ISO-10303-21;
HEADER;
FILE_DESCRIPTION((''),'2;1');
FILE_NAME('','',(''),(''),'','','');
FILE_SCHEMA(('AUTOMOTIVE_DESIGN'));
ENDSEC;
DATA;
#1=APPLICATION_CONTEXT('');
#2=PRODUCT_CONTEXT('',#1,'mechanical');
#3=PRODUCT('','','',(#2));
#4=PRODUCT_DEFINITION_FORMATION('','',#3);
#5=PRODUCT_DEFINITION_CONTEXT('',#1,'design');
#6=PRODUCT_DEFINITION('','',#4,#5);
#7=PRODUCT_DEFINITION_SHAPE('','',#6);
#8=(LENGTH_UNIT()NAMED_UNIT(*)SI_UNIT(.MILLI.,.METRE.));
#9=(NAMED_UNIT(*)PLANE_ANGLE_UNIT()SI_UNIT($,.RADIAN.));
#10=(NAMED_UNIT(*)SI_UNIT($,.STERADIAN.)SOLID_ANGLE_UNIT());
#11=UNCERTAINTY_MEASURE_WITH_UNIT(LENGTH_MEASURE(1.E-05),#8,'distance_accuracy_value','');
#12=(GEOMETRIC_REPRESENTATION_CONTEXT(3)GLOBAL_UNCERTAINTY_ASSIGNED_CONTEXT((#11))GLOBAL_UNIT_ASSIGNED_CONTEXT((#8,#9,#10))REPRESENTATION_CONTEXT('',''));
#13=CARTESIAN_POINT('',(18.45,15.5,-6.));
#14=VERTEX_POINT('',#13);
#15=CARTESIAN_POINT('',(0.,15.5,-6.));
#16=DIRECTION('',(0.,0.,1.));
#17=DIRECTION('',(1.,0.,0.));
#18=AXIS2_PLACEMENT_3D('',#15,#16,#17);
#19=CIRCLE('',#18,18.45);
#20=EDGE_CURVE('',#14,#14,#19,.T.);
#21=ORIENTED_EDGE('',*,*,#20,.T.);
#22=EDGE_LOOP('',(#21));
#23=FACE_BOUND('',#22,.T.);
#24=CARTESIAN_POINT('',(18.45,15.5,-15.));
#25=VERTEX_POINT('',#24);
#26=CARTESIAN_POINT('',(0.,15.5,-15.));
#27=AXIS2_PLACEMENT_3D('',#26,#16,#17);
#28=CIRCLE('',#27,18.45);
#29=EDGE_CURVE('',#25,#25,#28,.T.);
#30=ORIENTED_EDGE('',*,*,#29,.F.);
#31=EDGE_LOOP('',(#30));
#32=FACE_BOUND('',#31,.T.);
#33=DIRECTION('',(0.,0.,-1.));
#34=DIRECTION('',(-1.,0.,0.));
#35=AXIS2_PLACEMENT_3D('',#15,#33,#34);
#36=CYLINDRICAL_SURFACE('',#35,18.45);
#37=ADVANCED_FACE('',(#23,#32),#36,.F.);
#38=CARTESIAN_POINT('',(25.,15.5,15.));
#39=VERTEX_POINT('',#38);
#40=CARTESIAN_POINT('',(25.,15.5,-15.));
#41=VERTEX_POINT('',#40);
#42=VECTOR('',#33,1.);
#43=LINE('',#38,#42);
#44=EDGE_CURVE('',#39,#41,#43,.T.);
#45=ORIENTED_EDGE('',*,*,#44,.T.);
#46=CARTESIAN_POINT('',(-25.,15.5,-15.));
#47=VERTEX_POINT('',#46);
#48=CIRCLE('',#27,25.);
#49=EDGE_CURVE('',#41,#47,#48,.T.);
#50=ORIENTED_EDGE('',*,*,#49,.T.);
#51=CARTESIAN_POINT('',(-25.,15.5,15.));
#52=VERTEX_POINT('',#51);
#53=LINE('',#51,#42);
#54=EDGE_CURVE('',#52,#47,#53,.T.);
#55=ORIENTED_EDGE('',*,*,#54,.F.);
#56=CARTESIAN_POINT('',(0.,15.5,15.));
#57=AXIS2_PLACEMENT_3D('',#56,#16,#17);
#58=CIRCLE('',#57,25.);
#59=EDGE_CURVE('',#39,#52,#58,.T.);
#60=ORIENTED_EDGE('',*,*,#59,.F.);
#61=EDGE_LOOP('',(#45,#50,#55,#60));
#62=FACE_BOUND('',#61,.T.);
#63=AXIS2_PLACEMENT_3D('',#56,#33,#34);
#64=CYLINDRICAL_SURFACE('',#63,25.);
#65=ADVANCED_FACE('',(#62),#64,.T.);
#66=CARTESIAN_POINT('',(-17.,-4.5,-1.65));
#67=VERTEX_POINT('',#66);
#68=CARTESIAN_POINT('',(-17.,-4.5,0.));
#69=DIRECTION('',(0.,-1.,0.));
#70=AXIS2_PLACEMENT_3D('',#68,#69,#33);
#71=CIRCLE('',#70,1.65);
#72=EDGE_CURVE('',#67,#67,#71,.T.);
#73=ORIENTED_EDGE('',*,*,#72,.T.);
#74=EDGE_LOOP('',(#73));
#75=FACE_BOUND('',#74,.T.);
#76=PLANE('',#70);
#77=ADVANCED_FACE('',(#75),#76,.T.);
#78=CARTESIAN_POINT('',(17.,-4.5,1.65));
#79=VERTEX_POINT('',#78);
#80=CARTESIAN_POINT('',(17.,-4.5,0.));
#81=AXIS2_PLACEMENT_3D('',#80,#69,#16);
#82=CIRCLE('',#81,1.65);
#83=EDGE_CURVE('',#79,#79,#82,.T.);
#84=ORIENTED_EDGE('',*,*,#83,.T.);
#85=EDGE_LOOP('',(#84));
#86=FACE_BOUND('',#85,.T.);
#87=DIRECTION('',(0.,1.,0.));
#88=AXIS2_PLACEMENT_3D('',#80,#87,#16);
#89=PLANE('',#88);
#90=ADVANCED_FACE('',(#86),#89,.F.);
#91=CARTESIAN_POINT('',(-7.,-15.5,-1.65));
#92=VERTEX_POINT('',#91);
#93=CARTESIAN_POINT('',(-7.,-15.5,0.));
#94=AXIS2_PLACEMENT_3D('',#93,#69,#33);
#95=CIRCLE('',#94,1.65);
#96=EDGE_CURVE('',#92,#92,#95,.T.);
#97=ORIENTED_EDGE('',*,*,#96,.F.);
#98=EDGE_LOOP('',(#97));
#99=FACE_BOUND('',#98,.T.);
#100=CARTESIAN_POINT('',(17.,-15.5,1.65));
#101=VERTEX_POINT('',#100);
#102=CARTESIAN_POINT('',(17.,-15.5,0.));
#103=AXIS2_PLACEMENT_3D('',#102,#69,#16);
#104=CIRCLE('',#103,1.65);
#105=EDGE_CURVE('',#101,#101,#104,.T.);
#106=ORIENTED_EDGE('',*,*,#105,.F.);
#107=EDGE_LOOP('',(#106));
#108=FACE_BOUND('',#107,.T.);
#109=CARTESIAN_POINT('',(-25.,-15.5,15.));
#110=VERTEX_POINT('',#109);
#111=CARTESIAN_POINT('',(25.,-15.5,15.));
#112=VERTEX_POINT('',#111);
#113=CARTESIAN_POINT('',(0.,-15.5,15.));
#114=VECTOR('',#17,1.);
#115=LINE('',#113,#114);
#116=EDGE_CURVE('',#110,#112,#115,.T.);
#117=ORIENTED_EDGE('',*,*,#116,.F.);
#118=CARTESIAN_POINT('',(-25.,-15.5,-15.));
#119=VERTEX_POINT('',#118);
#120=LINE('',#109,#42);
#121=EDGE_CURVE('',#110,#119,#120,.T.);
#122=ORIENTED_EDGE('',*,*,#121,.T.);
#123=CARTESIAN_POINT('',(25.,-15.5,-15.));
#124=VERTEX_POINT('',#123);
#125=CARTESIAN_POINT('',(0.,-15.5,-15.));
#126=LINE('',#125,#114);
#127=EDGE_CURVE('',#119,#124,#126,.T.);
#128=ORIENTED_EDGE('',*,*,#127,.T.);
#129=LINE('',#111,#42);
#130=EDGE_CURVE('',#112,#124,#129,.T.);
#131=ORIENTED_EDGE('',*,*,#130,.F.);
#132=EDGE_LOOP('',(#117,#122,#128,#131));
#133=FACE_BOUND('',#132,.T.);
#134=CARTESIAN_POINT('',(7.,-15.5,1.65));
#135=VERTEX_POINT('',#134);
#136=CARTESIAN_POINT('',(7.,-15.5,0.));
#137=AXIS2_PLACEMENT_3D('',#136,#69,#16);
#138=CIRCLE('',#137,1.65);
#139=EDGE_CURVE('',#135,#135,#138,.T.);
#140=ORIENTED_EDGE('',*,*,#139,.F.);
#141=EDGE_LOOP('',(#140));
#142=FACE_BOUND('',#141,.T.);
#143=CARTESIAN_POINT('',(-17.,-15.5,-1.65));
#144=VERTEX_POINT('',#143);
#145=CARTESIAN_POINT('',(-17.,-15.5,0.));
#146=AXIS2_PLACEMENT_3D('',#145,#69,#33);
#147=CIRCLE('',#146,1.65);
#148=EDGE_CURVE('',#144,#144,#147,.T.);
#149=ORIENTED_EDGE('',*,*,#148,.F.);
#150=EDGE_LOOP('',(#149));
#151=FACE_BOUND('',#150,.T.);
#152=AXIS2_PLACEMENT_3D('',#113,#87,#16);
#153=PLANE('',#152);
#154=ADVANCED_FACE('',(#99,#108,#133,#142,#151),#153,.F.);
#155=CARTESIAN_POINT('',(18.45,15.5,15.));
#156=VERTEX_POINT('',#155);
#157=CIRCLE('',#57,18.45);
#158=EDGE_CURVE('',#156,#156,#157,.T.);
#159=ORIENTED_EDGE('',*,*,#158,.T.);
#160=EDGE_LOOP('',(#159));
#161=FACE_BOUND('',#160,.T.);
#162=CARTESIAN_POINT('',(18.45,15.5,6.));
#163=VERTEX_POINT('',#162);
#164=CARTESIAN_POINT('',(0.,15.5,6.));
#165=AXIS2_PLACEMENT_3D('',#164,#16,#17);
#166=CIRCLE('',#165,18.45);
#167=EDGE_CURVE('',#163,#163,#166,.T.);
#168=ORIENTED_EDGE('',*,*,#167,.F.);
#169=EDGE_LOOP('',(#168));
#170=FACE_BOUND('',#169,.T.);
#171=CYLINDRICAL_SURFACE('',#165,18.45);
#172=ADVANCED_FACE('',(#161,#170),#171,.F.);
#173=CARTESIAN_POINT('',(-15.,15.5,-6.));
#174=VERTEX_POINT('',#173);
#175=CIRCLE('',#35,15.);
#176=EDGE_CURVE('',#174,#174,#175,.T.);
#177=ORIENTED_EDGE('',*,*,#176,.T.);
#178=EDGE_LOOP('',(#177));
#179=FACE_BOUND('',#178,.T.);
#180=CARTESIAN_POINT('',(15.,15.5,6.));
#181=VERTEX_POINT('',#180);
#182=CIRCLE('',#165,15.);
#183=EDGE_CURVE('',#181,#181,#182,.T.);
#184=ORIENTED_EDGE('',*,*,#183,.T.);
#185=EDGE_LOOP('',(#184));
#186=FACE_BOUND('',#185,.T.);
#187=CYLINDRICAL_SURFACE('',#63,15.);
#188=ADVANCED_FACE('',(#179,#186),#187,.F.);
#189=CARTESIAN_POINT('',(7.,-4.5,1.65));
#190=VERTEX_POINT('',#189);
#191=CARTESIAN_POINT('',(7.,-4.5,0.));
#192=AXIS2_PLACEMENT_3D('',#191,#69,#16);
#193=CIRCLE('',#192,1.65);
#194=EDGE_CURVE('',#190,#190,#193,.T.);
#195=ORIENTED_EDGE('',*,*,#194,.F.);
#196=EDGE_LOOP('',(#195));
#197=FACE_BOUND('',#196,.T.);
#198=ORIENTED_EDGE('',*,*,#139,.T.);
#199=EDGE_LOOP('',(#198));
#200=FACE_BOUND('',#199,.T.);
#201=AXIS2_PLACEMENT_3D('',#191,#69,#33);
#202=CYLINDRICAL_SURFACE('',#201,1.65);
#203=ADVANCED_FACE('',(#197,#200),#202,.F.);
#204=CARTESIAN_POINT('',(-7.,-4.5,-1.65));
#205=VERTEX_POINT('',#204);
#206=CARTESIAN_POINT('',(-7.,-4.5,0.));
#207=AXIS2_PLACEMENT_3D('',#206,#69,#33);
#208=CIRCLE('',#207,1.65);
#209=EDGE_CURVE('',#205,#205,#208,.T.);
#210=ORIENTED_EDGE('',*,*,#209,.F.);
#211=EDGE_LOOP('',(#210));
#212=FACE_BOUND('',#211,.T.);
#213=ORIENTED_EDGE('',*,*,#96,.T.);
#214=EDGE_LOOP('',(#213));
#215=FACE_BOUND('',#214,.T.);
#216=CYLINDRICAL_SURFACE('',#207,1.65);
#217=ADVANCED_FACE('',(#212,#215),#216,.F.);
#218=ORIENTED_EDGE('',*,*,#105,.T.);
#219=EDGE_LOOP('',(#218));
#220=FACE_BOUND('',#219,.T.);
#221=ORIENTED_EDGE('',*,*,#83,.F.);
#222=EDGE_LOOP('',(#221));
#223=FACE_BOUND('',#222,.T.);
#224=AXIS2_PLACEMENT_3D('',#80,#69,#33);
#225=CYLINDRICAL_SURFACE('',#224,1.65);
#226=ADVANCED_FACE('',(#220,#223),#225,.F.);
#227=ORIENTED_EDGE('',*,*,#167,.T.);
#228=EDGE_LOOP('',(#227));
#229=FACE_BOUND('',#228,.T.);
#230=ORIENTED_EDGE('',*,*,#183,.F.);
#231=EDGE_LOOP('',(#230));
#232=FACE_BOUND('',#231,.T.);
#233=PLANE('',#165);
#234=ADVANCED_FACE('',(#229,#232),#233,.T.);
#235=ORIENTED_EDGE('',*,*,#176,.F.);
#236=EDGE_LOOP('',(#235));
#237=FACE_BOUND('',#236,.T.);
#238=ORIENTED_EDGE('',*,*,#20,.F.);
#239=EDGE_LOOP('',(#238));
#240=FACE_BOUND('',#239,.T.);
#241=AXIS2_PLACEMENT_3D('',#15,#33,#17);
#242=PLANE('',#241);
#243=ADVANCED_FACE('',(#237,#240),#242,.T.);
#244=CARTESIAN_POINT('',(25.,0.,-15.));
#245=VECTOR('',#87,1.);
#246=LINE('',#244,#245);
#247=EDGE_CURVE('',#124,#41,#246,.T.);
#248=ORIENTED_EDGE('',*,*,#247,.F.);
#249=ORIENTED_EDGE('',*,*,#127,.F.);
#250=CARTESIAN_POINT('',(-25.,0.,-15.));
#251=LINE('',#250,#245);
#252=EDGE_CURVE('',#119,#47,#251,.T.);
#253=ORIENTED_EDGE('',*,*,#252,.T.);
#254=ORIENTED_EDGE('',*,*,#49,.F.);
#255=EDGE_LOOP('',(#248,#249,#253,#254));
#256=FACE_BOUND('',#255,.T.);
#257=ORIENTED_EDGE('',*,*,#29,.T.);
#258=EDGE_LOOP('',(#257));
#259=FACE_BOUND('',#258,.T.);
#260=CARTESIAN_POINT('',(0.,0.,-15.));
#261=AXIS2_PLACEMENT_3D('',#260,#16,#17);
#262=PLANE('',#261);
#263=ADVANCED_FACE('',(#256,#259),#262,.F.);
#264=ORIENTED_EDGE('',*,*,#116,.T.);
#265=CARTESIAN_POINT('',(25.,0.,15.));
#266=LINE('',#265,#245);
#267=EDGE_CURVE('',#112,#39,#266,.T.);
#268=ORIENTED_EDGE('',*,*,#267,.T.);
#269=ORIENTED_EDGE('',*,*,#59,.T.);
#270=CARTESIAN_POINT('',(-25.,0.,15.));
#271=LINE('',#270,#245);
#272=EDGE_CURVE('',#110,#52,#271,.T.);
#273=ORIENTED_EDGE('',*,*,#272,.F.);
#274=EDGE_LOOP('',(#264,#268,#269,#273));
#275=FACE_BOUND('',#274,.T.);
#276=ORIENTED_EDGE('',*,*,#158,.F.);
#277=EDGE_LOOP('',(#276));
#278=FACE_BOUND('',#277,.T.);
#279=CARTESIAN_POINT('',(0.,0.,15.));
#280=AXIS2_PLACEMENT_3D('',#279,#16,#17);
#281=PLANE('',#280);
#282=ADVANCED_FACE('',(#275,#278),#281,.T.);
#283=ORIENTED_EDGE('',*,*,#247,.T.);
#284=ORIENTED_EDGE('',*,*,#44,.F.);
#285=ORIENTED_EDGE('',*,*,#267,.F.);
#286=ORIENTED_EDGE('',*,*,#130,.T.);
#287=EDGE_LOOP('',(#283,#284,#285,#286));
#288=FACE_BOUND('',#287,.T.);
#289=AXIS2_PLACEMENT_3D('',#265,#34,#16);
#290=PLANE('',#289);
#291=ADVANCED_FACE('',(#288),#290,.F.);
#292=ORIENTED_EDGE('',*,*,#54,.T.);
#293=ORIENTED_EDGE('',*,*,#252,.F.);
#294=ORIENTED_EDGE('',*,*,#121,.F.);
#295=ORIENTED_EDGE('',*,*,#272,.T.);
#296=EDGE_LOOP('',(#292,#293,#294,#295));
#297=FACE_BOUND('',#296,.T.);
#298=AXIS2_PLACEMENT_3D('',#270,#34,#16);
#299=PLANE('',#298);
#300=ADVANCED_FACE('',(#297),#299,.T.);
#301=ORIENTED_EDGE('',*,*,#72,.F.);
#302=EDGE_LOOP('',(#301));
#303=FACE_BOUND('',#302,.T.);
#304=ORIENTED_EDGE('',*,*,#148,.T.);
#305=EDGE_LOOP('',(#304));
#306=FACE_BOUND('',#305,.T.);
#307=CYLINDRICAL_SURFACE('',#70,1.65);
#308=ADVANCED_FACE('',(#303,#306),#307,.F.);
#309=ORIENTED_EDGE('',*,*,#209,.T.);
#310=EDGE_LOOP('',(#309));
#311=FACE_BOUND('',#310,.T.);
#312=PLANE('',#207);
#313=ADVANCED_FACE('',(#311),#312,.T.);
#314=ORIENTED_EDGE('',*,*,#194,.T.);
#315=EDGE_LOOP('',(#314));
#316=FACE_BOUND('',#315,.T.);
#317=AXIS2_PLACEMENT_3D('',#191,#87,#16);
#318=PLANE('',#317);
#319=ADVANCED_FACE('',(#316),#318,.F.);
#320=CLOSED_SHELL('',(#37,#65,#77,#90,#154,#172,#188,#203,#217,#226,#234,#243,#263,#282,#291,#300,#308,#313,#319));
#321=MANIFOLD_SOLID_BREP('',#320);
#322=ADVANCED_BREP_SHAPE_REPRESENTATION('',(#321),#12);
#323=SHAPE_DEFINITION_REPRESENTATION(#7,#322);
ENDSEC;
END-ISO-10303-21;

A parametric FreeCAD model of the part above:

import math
import FreeCAD as App
import Part
import Sketcher
from FreeCAD import Vector
Q = App.Units.Quantity

doc = App.newDocument("Part")
body = doc.addObject("PartDesign::Body", "Body")

# Sketch on XY plane
sketch1 = doc.addObject("Sketcher::SketchObject", "Sketch")
body.addObject(sketch1)
sketch1.AttachmentSupport = (doc.XY_Plane, [""])
sketch1.MapMode = "FlatFace"
sketch1.addGeometry([
    Part.ArcOfCircle(Part.Circle(Vector(0, 16, 0), Vector(0, 0, 1), 25), math.radians(0), math.radians(180)),  # 0
    Part.LineSegment(Vector(-25, 16, 0), Vector(-25, -16, 0)),  # 1
    Part.LineSegment(Vector(-25, -16, 0), Vector(25, -16, 0)),  # 2
    Part.LineSegment(Vector(25, -16, 0), Vector(25, 16, 0)),  # 3
    Part.Circle(Vector(0, 16, 0), Vector(0, 0, 1), 15),  # 4
], False)
sketch1.addConstraint([
    Sketcher.Constraint("Tangent", 0, 2, 1, 1),
    Sketcher.Constraint("Coincident", 1, 2, 2, 1),
    Sketcher.Constraint("Coincident", 2, 2, 3, 1),
    Sketcher.Constraint("Tangent", 3, 2, 0, 1),
    Sketcher.Constraint("Vertical", 1),
    Sketcher.Constraint("Horizontal", 2),
    Sketcher.Constraint("Vertical", 3),
    Sketcher.Constraint("Coincident", 4, 3, 0, 3),
    Sketcher.Constraint("Symmetric", 0, 2, 2, 2, -1, 1),
    Sketcher.Constraint("Diameter", 4, Q("30 mm")),
    Sketcher.Constraint("Radius", 0, Q("25 mm")),
    Sketcher.Constraint("DistanceY", 1, 2, 1, 1, Q("31 mm")),
])
pad1 = doc.addObject("PartDesign::Pad", "Pad")
body.addObject(pad1)
pad1.Profile = sketch1
pad1.Length = 30
pad1.Midplane = True

# Sketch on XY plane
sketch2 = doc.addObject("Sketcher::SketchObject", "Sketch001")
body.addObject(sketch2)
sketch2.AttachmentSupport = (doc.XY_Plane, [""])
sketch2.MapMode = "FlatFace"
sketch2.AttachmentOffset = App.Placement(Vector(0, 0, 15), App.Rotation())
sketch2.addGeometry(Part.Circle(Vector(0, 16, 0), Vector(0, 0, 1), 18), False)
sketch2.addConstraint([
    Sketcher.Constraint("PointOnObject", 0, 3, -2),
    Sketcher.Constraint("Diameter", 0, Q("36.9 mm")),
    Sketcher.Constraint("DistanceY", -1, 1, 0, 3, Q("15.5 mm")),
])
pocket1 = doc.addObject("PartDesign::Pocket", "Pocket")
body.addObject(pocket1)
pocket1.Profile = sketch2
pocket1.Length = 9
doc.recompute()

mirrored = doc.addObject("PartDesign::Mirrored", "Mirrored")
body.addObject(mirrored)
mirrored.Originals = [pocket1]
mirrored.MirrorPlane = (doc.XY_Plane, [""])
body.Tip = mirrored

# Sketch on XZ plane
sketch3 = doc.addObject("Sketcher::SketchObject", "Sketch002")
body.addObject(sketch3)
sketch3.AttachmentSupport = (doc.XZ_Plane, [""])
sketch3.MapMode = "FlatFace"
sketch3.AttachmentOffset = App.Placement(Vector(0, 0, 15.5), App.Rotation())
sketch3.addGeometry([
    Part.Circle(Vector(-17, 0, 0), Vector(0, 0, 1), 1.6),
    Part.Circle(Vector(-7, 0, 0), Vector(0, 0, 1), 1.6),
    Part.Circle(Vector(7, 0, 0), Vector(0, 0, 1), 1.6),
    Part.Circle(Vector(17, 0, 0), Vector(0, 0, 1), 1.6),
], False)
sketch3.addConstraint([
    Sketcher.Constraint("Equal", 0, 1),
    Sketcher.Constraint("Equal", 1, 2),
    Sketcher.Constraint("Equal", 2, 3),
    Sketcher.Constraint("Symmetric", 1, 3, 2, 3, -1, 1),
    Sketcher.Constraint("Symmetric", 0, 3, 3, 3, -1, 1),
    Sketcher.Constraint("PointOnObject", 0, 3, -1),
    Sketcher.Constraint("PointOnObject", 1, 3, -1),
    Sketcher.Constraint("Diameter", 0, Q("3.3 mm")),
    Sketcher.Constraint("DistanceX", 0, 3, -1, 1, Q("17 mm")),
    Sketcher.Constraint("DistanceX", 1, 3, -1, 1, Q("7 mm")),
])
pocket2 = doc.addObject("PartDesign::Pocket", "Pocket001")
body.addObject(pocket2)
pocket2.Profile = sketch3
pocket2.Length = 11

doc.recompute()
